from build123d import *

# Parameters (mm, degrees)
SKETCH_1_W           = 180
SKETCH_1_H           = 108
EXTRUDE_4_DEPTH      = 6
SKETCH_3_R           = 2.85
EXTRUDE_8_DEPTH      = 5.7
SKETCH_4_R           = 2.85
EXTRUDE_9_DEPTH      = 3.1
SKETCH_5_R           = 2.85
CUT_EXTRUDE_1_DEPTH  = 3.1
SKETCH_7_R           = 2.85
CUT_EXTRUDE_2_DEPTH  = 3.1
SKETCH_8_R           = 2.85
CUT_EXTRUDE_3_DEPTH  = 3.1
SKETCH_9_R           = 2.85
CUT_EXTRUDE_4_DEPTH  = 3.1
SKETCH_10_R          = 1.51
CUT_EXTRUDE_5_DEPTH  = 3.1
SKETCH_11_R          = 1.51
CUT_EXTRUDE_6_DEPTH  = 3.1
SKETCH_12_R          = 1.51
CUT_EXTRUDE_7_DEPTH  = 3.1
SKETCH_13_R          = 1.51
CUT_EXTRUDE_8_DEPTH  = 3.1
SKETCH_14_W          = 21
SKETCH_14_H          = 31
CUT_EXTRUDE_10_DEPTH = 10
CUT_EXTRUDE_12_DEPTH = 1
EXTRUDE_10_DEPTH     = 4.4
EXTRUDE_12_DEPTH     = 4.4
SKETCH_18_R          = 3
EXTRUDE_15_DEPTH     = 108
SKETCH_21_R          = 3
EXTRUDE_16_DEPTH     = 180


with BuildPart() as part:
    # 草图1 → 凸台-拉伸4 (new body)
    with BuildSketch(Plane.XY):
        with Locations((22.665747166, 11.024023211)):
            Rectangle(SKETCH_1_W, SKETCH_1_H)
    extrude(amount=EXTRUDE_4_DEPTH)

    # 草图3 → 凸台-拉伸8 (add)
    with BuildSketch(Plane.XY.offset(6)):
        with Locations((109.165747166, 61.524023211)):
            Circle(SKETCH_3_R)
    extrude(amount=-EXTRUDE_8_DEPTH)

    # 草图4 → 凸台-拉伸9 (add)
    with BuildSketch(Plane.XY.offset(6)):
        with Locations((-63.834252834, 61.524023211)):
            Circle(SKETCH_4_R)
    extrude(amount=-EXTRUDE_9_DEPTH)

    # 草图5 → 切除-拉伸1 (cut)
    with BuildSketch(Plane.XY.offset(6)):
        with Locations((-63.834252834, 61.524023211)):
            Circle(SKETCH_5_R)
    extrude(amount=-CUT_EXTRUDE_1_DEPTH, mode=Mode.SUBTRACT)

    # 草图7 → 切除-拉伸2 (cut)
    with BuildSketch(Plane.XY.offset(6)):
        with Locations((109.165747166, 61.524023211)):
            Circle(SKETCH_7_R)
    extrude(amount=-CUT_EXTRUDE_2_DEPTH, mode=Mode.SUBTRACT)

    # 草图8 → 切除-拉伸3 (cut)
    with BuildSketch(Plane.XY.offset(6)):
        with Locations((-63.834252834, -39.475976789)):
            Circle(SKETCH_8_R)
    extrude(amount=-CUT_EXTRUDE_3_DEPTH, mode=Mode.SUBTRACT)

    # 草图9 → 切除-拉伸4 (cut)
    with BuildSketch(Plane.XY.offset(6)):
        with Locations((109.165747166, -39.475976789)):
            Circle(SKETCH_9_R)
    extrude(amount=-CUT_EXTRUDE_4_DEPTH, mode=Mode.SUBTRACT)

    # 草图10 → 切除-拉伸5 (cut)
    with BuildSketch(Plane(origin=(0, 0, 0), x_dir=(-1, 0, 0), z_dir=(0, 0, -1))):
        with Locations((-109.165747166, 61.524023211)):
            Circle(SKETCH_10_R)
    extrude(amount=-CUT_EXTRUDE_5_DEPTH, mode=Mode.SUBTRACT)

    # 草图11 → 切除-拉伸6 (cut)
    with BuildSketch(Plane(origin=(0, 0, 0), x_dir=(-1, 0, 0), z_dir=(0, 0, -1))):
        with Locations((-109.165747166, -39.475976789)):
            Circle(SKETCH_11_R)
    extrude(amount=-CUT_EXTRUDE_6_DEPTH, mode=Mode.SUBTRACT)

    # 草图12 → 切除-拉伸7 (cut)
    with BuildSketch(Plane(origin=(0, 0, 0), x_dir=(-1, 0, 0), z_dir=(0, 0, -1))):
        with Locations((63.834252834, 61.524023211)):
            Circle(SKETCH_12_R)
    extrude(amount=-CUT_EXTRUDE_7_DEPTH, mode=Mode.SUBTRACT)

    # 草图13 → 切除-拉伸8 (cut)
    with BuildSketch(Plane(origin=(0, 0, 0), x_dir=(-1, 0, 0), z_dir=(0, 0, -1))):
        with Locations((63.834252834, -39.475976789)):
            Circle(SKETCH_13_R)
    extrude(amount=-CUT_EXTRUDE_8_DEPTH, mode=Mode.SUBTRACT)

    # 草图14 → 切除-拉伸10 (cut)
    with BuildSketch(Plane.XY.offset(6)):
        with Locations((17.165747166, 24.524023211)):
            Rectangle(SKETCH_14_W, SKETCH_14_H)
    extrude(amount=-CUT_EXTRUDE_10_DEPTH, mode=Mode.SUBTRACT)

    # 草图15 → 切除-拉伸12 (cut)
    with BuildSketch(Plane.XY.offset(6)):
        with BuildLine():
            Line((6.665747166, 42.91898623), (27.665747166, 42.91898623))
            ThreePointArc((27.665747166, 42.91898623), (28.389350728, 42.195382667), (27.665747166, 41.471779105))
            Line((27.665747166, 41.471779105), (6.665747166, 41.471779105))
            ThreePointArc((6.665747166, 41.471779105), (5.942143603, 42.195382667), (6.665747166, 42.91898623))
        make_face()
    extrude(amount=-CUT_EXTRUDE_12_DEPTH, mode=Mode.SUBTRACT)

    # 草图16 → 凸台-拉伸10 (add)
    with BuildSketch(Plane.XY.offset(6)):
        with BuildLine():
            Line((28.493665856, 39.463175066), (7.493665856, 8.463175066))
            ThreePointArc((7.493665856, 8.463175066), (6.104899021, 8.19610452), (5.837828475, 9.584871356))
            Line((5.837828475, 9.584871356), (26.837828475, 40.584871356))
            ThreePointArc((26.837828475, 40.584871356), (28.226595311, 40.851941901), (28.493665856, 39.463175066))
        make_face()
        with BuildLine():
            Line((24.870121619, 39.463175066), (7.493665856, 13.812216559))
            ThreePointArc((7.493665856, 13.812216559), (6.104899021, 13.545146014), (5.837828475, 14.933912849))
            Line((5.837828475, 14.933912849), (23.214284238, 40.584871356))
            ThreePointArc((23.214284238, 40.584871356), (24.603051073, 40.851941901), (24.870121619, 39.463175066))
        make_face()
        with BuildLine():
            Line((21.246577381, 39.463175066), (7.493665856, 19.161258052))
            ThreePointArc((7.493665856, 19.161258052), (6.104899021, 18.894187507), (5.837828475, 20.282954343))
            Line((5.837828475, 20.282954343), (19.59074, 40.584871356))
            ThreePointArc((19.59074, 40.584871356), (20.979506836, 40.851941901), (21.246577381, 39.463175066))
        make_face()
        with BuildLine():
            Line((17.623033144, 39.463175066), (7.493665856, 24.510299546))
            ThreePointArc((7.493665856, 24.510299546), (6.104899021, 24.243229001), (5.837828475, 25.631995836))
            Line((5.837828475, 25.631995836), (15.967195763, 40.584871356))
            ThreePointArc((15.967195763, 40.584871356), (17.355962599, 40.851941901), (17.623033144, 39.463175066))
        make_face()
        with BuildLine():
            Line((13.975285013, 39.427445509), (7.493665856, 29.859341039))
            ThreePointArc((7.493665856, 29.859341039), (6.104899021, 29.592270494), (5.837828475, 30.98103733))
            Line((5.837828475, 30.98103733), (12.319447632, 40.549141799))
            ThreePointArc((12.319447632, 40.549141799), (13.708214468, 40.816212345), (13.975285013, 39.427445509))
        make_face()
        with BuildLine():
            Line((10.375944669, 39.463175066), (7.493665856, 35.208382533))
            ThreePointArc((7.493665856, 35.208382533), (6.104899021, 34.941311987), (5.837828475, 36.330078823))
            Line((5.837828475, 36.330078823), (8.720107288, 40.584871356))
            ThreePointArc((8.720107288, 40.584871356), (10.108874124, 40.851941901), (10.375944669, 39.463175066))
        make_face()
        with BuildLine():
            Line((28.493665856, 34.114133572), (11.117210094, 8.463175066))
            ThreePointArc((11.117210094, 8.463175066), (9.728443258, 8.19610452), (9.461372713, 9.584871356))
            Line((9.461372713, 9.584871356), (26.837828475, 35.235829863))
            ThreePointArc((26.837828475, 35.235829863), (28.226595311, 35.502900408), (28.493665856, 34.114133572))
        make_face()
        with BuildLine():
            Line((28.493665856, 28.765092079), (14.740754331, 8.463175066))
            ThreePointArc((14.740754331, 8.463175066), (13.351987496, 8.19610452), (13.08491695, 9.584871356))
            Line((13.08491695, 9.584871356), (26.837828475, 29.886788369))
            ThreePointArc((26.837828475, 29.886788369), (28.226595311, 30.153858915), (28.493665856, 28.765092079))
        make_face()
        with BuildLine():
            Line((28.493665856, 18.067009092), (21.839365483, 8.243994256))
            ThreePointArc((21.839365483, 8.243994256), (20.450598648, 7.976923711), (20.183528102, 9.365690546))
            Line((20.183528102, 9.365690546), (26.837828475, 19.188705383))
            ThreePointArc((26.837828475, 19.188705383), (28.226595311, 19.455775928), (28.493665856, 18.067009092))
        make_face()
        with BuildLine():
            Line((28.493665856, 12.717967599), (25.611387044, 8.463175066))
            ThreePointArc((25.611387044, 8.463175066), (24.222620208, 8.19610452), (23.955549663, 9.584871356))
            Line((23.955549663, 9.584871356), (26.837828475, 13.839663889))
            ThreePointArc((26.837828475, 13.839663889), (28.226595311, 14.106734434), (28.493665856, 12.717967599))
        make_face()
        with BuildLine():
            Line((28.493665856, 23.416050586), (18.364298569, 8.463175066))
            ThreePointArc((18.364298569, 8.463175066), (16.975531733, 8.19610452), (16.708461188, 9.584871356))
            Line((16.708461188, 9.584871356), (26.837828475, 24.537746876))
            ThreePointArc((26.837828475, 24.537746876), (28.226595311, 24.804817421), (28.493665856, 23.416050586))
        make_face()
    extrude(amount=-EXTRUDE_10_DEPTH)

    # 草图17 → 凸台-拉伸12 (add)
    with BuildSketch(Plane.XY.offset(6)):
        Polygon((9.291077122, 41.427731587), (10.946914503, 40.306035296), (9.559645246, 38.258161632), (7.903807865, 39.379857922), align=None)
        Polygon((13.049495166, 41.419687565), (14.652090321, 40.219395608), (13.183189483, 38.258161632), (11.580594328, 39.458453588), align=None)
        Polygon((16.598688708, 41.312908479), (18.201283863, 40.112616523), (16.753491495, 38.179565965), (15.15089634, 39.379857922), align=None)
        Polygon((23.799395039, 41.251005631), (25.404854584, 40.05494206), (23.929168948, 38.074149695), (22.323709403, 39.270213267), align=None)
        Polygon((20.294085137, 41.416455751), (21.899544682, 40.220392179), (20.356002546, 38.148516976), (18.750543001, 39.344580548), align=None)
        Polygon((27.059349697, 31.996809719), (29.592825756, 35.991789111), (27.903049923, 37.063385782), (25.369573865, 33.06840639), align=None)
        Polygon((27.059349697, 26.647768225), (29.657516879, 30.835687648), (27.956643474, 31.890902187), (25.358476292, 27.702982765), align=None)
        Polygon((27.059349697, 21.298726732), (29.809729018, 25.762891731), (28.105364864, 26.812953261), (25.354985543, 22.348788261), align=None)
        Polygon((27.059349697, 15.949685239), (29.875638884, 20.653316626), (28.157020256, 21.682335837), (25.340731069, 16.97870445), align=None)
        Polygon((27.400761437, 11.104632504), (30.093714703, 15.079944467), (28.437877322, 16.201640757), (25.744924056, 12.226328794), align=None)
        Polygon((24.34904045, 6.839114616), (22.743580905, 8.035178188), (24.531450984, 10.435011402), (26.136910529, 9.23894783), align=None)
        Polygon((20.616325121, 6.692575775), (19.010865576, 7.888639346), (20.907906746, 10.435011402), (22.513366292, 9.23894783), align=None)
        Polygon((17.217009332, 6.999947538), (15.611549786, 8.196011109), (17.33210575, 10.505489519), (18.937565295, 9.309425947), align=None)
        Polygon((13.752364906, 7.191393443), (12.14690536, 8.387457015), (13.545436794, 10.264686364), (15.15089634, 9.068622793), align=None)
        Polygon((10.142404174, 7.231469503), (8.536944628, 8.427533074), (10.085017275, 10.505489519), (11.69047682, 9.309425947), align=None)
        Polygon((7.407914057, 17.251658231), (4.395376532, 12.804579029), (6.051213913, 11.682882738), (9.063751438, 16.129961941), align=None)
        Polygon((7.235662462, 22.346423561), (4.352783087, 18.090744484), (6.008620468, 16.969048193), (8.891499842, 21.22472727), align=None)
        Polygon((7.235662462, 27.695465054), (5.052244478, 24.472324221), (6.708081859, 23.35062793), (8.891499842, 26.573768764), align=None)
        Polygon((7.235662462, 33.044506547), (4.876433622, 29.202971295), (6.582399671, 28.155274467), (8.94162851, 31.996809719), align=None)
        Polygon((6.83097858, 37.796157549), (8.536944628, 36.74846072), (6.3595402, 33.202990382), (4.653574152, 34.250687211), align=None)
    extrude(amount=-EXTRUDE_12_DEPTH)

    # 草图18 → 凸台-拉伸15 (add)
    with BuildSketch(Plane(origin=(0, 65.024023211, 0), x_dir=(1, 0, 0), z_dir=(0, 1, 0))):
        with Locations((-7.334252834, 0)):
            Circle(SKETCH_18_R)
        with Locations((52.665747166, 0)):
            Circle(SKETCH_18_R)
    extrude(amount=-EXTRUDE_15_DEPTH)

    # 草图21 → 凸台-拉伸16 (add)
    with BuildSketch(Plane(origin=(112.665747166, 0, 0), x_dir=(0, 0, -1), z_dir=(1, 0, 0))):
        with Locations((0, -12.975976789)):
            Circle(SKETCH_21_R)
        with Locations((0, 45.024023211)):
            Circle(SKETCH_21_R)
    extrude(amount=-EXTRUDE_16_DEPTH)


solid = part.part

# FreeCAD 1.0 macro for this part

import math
import FreeCAD as App
import Part
import Sketcher

V = App.Vector


def add_polygon(sketch, points):
    """Adds a closed chain of lines whose ends are joined by coincident constraints."""
    first, n = sketch.GeometryCount, len(points)
    for a, b in zip(points, points[1:] + points[:1]):
        sketch.addGeometry(Part.LineSegment(App.Vector(*a, 0), App.Vector(*b, 0)), False)
    for i in range(n):
        sketch.addConstraint(Sketcher.Constraint("Coincident", first + i, 2, first + (i + 1) % n, 1))

doc = App.newDocument("Part")
body = doc.addObject("PartDesign::Body", "Body")

# Sketch on XY plane
sketch1 = body.newObject("Sketcher::SketchObject", "Sketch")
sketch1.AttachmentSupport = (doc.getObject("XY_Plane"), [""])
sketch1.MapMode = "FlatFace"
add_polygon(sketch1, [(-67.334253, 65.024023), (-67.334253, -42.975977), (112.665747, -42.975977), (112.665747, 65.024023)])  # lines 0-3
sketch1.addConstraint([
    Sketcher.Constraint("Vertical", 0),
    Sketcher.Constraint("Horizontal", 1),
    Sketcher.Constraint("Vertical", 2),
    Sketcher.Constraint("Horizontal", 3),
    Sketcher.Constraint("DistanceX", 1, 1, 1, 2, 180.0),
    Sketcher.Constraint("DistanceY", 0, 2, 0, 1, 108.0),
    Sketcher.Constraint("DistanceX", 0, 2, -1, 1, 67.334253),
    Sketcher.Constraint("DistanceY", 0, 2, -1, 1, 42.975977),
])
pad1 = body.newObject("PartDesign::Pad", "Pad")
pad1.Profile = sketch1
pad1.Length = 6

# Sketch on XY plane
sketch2 = body.newObject("Sketcher::SketchObject", "Sketch001")
sketch2.AttachmentSupport = (doc.getObject("XY_Plane"), [""])
sketch2.MapMode = "FlatFace"
sketch2.AttachmentOffset = App.Placement(V(0, 0, 6), App.Rotation())
sketch2.addGeometry(Part.Circle(V(109.165747, 61.524023, 0), V(0, 0, 1), 2.85), False)
sketch2.addConstraint([
    Sketcher.Constraint("Diameter", 0, 5.7),
    Sketcher.Constraint("DistanceX", -1, 1, 0, 3, 109.165747),
    Sketcher.Constraint("DistanceY", -1, 1, 0, 3, 61.524023),
])
pad2 = body.newObject("PartDesign::Pad", "Pad001")
pad2.Profile = sketch2
pad2.Length = 5.7
pad2.Reversed = True

# Sketch on XY plane
sketch3 = body.newObject("Sketcher::SketchObject", "Sketch002")
sketch3.AttachmentSupport = (doc.getObject("XY_Plane"), [""])
sketch3.MapMode = "FlatFace"
sketch3.AttachmentOffset = App.Placement(V(0, 0, 6), App.Rotation())
sketch3.addGeometry(Part.Circle(V(-63.834253, 61.524023, 0), V(0, 0, 1), 2.85), False)
sketch3.addConstraint([
    Sketcher.Constraint("Diameter", 0, 5.7),
    Sketcher.Constraint("DistanceX", 0, 3, -1, 1, 63.834253),
    Sketcher.Constraint("DistanceY", -1, 1, 0, 3, 61.524023),
])
pad3 = body.newObject("PartDesign::Pad", "Pad002")
pad3.Profile = sketch3
pad3.Length = 3.1
pad3.Reversed = True

# Sketch on XY plane
sketch4 = body.newObject("Sketcher::SketchObject", "Sketch003")
sketch4.AttachmentSupport = (doc.getObject("XY_Plane"), [""])
sketch4.MapMode = "FlatFace"
sketch4.AttachmentOffset = App.Placement(V(0, 0, 6), App.Rotation())
sketch4.addGeometry(Part.Circle(V(-63.834253, 61.524023, 0), V(0, 0, 1), 2.85), False)
sketch4.addConstraint([
    Sketcher.Constraint("Diameter", 0, 5.7),
    Sketcher.Constraint("DistanceX", 0, 3, -1, 1, 63.834253),
    Sketcher.Constraint("DistanceY", -1, 1, 0, 3, 61.524023),
])
pocket1 = body.newObject("PartDesign::Pocket", "Pocket")
pocket1.Profile = sketch4
pocket1.Length = 3.1

# Sketch on XY plane
sketch5 = body.newObject("Sketcher::SketchObject", "Sketch004")
sketch5.AttachmentSupport = (doc.getObject("XY_Plane"), [""])
sketch5.MapMode = "FlatFace"
sketch5.AttachmentOffset = App.Placement(V(0, 0, 6), App.Rotation())
sketch5.addGeometry(Part.Circle(V(109.165747, 61.524023, 0), V(0, 0, 1), 2.85), False)
sketch5.addConstraint([
    Sketcher.Constraint("Diameter", 0, 5.7),
    Sketcher.Constraint("DistanceX", -1, 1, 0, 3, 109.165747),
    Sketcher.Constraint("DistanceY", -1, 1, 0, 3, 61.524023),
])
pocket2 = body.newObject("PartDesign::Pocket", "Pocket001")
pocket2.Profile = sketch5
pocket2.Length = 3.1

# Sketch on XY plane
sketch6 = body.newObject("Sketcher::SketchObject", "Sketch005")
sketch6.AttachmentSupport = (doc.getObject("XY_Plane"), [""])
sketch6.MapMode = "FlatFace"
sketch6.AttachmentOffset = App.Placement(V(0, 0, 6), App.Rotation())
sketch6.addGeometry(Part.Circle(V(-63.834253, -39.475977, 0), V(0, 0, 1), 2.85), False)
sketch6.addConstraint([
    Sketcher.Constraint("Diameter", 0, 5.7),
    Sketcher.Constraint("DistanceX", 0, 3, -1, 1, 63.834253),
    Sketcher.Constraint("DistanceY", 0, 3, -1, 1, 39.475977),
])
pocket3 = body.newObject("PartDesign::Pocket", "Pocket002")
pocket3.Profile = sketch6
pocket3.Length = 3.1

# Sketch on XY plane
sketch7 = body.newObject("Sketcher::SketchObject", "Sketch006")
sketch7.AttachmentSupport = (doc.getObject("XY_Plane"), [""])
sketch7.MapMode = "FlatFace"
sketch7.AttachmentOffset = App.Placement(V(0, 0, 6), App.Rotation())
sketch7.addGeometry(Part.Circle(V(109.165747, -39.475977, 0), V(0, 0, 1), 2.85), False)
sketch7.addConstraint([
    Sketcher.Constraint("Diameter", 0, 5.7),
    Sketcher.Constraint("DistanceX", -1, 1, 0, 3, 109.165747),
    Sketcher.Constraint("DistanceY", 0, 3, -1, 1, 39.475977),
])
pocket4 = body.newObject("PartDesign::Pocket", "Pocket003")
pocket4.Profile = sketch7
pocket4.Length = 3.1

# Sketch on XY plane
sketch8 = body.newObject("Sketcher::SketchObject", "Sketch007")
sketch8.AttachmentSupport = (doc.getObject("XY_Plane"), [""])
sketch8.MapMode = "FlatFace"
sketch8.addGeometry(Part.Circle(V(109.165747, 61.524023, 0), V(0, 0, 1), 1.51), False)
sketch8.addConstraint([
    Sketcher.Constraint("Diameter", 0, 3.02),
    Sketcher.Constraint("DistanceX", -1, 1, 0, 3, 109.165747),
    Sketcher.Constraint("DistanceY", -1, 1, 0, 3, 61.524023),
])
pocket5 = body.newObject("PartDesign::Pocket", "Pocket004")
pocket5.Profile = sketch8
pocket5.Length = 3.1
pocket5.Reversed = True

# Sketch on XY plane
sketch9 = body.newObject("Sketcher::SketchObject", "Sketch008")
sketch9.AttachmentSupport = (doc.getObject("XY_Plane"), [""])
sketch9.MapMode = "FlatFace"
sketch9.addGeometry(Part.Circle(V(109.165747, -39.475977, 0), V(0, 0, 1), 1.51), False)
sketch9.addConstraint([
    Sketcher.Constraint("Diameter", 0, 3.02),
    Sketcher.Constraint("DistanceX", -1, 1, 0, 3, 109.165747),
    Sketcher.Constraint("DistanceY", 0, 3, -1, 1, 39.475977),
])
pocket6 = body.newObject("PartDesign::Pocket", "Pocket005")
pocket6.Profile = sketch9
pocket6.Length = 3.1
pocket6.Reversed = True

# Sketch on XY plane
sketch10 = body.newObject("Sketcher::SketchObject", "Sketch009")
sketch10.AttachmentSupport = (doc.getObject("XY_Plane"), [""])
sketch10.MapMode = "FlatFace"
sketch10.addGeometry(Part.Circle(V(-63.834253, 61.524023, 0), V(0, 0, 1), 1.51), False)
sketch10.addConstraint([
    Sketcher.Constraint("Diameter", 0, 3.02),
    Sketcher.Constraint("DistanceX", 0, 3, -1, 1, 63.834253),
    Sketcher.Constraint("DistanceY", -1, 1, 0, 3, 61.524023),
])
pocket7 = body.newObject("PartDesign::Pocket", "Pocket006")
pocket7.Profile = sketch10
pocket7.Length = 3.1
pocket7.Reversed = True

# Sketch on XY plane
sketch11 = body.newObject("Sketcher::SketchObject", "Sketch010")
sketch11.AttachmentSupport = (doc.getObject("XY_Plane"), [""])
sketch11.MapMode = "FlatFace"
sketch11.addGeometry(Part.Circle(V(-63.834253, -39.475977, 0), V(0, 0, 1), 1.51), False)
sketch11.addConstraint([
    Sketcher.Constraint("Diameter", 0, 3.02),
    Sketcher.Constraint("DistanceX", 0, 3, -1, 1, 63.834253),
    Sketcher.Constraint("DistanceY", 0, 3, -1, 1, 39.475977),
])
pocket8 = body.newObject("PartDesign::Pocket", "Pocket007")
pocket8.Profile = sketch11
pocket8.Length = 3.1
pocket8.Reversed = True

# Sketch on XY plane
sketch12 = body.newObject("Sketcher::SketchObject", "Sketch011")
sketch12.AttachmentSupport = (doc.getObject("XY_Plane"), [""])
sketch12.MapMode = "FlatFace"
sketch12.AttachmentOffset = App.Placement(V(0, 0, 6), App.Rotation())
add_polygon(sketch12, [(6.665747, 40.024023), (6.665747, 9.024023), (27.665747, 9.024023), (27.665747, 40.024023)])  # lines 0-3
sketch12.addConstraint([
    Sketcher.Constraint("Vertical", 0),
    Sketcher.Constraint("Horizontal", 1),
    Sketcher.Constraint("Vertical", 2),
    Sketcher.Constraint("Horizontal", 3),
    Sketcher.Constraint("DistanceX", 1, 1, 1, 2, 21.0),
    Sketcher.Constraint("DistanceY", 0, 2, 0, 1, 31.0),
    Sketcher.Constraint("DistanceX", -1, 1, 0, 2, 6.665747),
    Sketcher.Constraint("DistanceY", -1, 1, 0, 2, 9.024023),
])
pocket9 = body.newObject("PartDesign::Pocket", "Pocket008")
pocket9.Profile = sketch12
pocket9.Length = 10

# Sketch on XY plane
sketch13 = body.newObject("Sketcher::SketchObject", "Sketch012")
sketch13.AttachmentSupport = (doc.getObject("XY_Plane"), [""])
sketch13.MapMode = "FlatFace"
sketch13.AttachmentOffset = App.Placement(V(0, 0, 6), App.Rotation())
sketch13.addGeometry([
    Part.LineSegment(V(27.665747, 42.918986, 0), V(6.665747, 42.918986, 0)),
    Part.ArcOfCircle(Part.Circle(V(6.665747, 42.195383, 0), V(0, 0, 1), 0.723604), math.radians(90), math.radians(270)),
    Part.LineSegment(V(6.665747, 41.471779, 0), V(27.665747, 41.471779, 0)),
    Part.ArcOfCircle(Part.Circle(V(27.665747, 42.195383, 0), V(0, 0, 1), 0.723604), math.radians(-90), math.radians(90)),
], False)
sketch13.addConstraint([
    Sketcher.Constraint("Tangent", 0, 2, 1, 1),
    Sketcher.Constraint("Tangent", 1, 2, 2, 1),
    Sketcher.Constraint("Tangent", 2, 2, 3, 1),
    Sketcher.Constraint("Tangent", 3, 2, 0, 1),
    Sketcher.Constraint("Horizontal", 0),
    Sketcher.Constraint("Horizontal", 2),
    Sketcher.Constraint("DistanceX", 0, 2, 0, 1, 21.0),
    Sketcher.Constraint("Radius", 1, 0.723604),
    Sketcher.Constraint("DistanceY", -1, 1, 1, 2, 41.471779),
    Sketcher.Constraint("DistanceX", -1, 1, 1, 3, 6.665747),
])
pocket10 = body.newObject("PartDesign::Pocket", "Pocket009")
pocket10.Profile = sketch13
pocket10.Length = 1

# Sketch on XY plane
sketch14 = body.newObject("Sketcher::SketchObject", "Sketch013")
sketch14.AttachmentSupport = (doc.getObject("XY_Plane"), [""])
sketch14.MapMode = "FlatFace"
sketch14.AttachmentOffset = App.Placement(V(0, 0, 6), App.Rotation())
sketch14.addGeometry([
    Part.LineSegment(V(7.493666, 8.463175, 0), V(28.493666, 39.463175, 0)),  # 0
    Part.ArcOfCircle(Part.Circle(V(27.665747, 40.024023, 0), V(0, 0, 1), 1), math.radians(-34.114473), math.radians(145.885527)),  # 1
    Part.LineSegment(V(26.837828, 40.584871, 0), V(5.837828, 9.584871, 0)),  # 2
    Part.ArcOfCircle(Part.Circle(V(6.665747, 9.024023, 0), V(0, 0, 1), 1), math.radians(145.885527), math.radians(325.885527)),  # 3
    Part.LineSegment(V(7.493666, 13.812217, 0), V(24.870122, 39.463175, 0)),  # 4
    Part.ArcOfCircle(Part.Circle(V(24.042203, 40.024023, 0), V(0, 0, 1), 1), math.radians(-34.114473), math.radians(145.885527)),  # 5
    Part.LineSegment(V(23.214284, 40.584871, 0), V(5.837828, 14.933913, 0)),  # 6
    Part.ArcOfCircle(Part.Circle(V(6.665747, 14.373065, 0), V(0, 0, 1), 1), math.radians(145.885527), math.radians(325.885527)),  # 7
    Part.LineSegment(V(7.493666, 19.161258, 0), V(21.246577, 39.463175, 0)),  # 8
    Part.ArcOfCircle(Part.Circle(V(20.418659, 40.024023, 0), V(0, 0, 1), 1), math.radians(-34.114473), math.radians(145.885527)),  # 9
    Part.LineSegment(V(19.59074, 40.584871, 0), V(5.837828, 20.282954, 0)),  # 10
    Part.ArcOfCircle(Part.Circle(V(6.665747, 19.722106, 0), V(0, 0, 1), 1), math.radians(145.885527), math.radians(325.885527)),  # 11
    Part.LineSegment(V(7.493666, 24.5103, 0), V(17.623033, 39.463175, 0)),  # 12
    Part.ArcOfCircle(Part.Circle(V(16.795114, 40.024023, 0), V(0, 0, 1), 1), math.radians(-34.114473), math.radians(145.885527)),  # 13
    Part.LineSegment(V(15.967196, 40.584871, 0), V(5.837828, 25.631996, 0)),  # 14
    Part.ArcOfCircle(Part.Circle(V(6.665747, 25.071148, 0), V(0, 0, 1), 1), math.radians(145.885527), math.radians(325.885527)),  # 15
    Part.LineSegment(V(7.493666, 29.859341, 0), V(13.975285, 39.427446, 0)),  # 16
    Part.ArcOfCircle(Part.Circle(V(13.147366, 39.988294, 0), V(0, 0, 1), 1), math.radians(-34.114473), math.radians(145.885527)),  # 17
    Part.LineSegment(V(12.319448, 40.549142, 0), V(5.837828, 30.981037, 0)),  # 18
    Part.ArcOfCircle(Part.Circle(V(6.665747, 30.420189, 0), V(0, 0, 1), 1), math.radians(145.885527), math.radians(325.885527)),  # 19
    Part.LineSegment(V(7.493666, 35.208383, 0), V(10.375945, 39.463175, 0)),  # 20
    Part.ArcOfCircle(Part.Circle(V(9.548026, 40.024023, 0), V(0, 0, 1), 1), math.radians(-34.114473), math.radians(145.885527)),  # 21
    Part.LineSegment(V(8.720107, 40.584871, 0), V(5.837828, 36.330079, 0)),  # 22
    Part.ArcOfCircle(Part.Circle(V(6.665747, 35.769231, 0), V(0, 0, 1), 1), math.radians(145.885527), math.radians(325.885527)),  # 23
    Part.LineSegment(V(11.11721, 8.463175, 0), V(28.493666, 34.114134, 0)),  # 24
    Part.ArcOfCircle(Part.Circle(V(27.665747, 34.674982, 0), V(0, 0, 1), 1), math.radians(-34.114473), math.radians(145.885527)),  # 25
    Part.LineSegment(V(26.837828, 35.23583, 0), V(9.461373, 9.584871, 0)),  # 26
    Part.ArcOfCircle(Part.Circle(V(10.289291, 9.024023, 0), V(0, 0, 1), 1), math.radians(145.885527), math.radians(325.885527)),  # 27
    Part.LineSegment(V(14.740754, 8.463175, 0), V(28.493666, 28.765092, 0)),  # 28
    Part.ArcOfCircle(Part.Circle(V(27.665747, 29.32594, 0), V(0, 0, 1), 1), math.radians(-34.114473), math.radians(145.885527)),  # 29
    Part.LineSegment(V(26.837828, 29.886788, 0), V(13.084917, 9.584871, 0)),  # 30
    Part.ArcOfCircle(Part.Circle(V(13.912836, 9.024023, 0), V(0, 0, 1), 1), math.radians(145.885527), math.radians(325.885527)),  # 31
    Part.LineSegment(V(21.839365, 8.243994, 0), V(28.493666, 18.067009, 0)),  # 32
    Part.ArcOfCircle(Part.Circle(V(27.665747, 18.627857, 0), V(0, 0, 1), 1), math.radians(-34.114473), math.radians(145.885527)),  # 33
    Part.LineSegment(V(26.837828, 19.188705, 0), V(20.183528, 9.365691, 0)),  # 34
    Part.ArcOfCircle(Part.Circle(V(21.011447, 8.804842, 0), V(0, 0, 1), 1), math.radians(145.885527), math.radians(325.885527)),  # 35
    Part.LineSegment(V(25.611387, 8.463175, 0), V(28.493666, 12.717968, 0)),  # 36
    Part.ArcOfCircle(Part.Circle(V(27.665747, 13.278816, 0), V(0, 0, 1), 1), math.radians(-34.114473), math.radians(145.885527)),  # 37
    Part.LineSegment(V(26.837828, 13.839664, 0), V(23.95555, 9.584871, 0)),  # 38
    Part.ArcOfCircle(Part.Circle(V(24.783468, 9.024023, 0), V(0, 0, 1), 1), math.radians(145.885527), math.radians(325.885527)),  # 39
    Part.LineSegment(V(18.364299, 8.463175, 0), V(28.493666, 23.416051, 0)),  # 40
    Part.ArcOfCircle(Part.Circle(V(27.665747, 23.976899, 0), V(0, 0, 1), 1), math.radians(-34.114473), math.radians(145.885527)),  # 41
    Part.LineSegment(V(26.837828, 24.537747, 0), V(16.708461, 9.584871, 0)),  # 42
    Part.ArcOfCircle(Part.Circle(V(17.53638, 9.024023, 0), V(0, 0, 1), 1), math.radians(145.885527), math.radians(325.885527)),  # 43
], False)
sketch14.addConstraint([
    Sketcher.Constraint("Tangent", 0, 2, 1, 1),
    Sketcher.Constraint("Tangent", 1, 2, 2, 1),
    Sketcher.Constraint("Tangent", 2, 2, 3, 1),
    Sketcher.Constraint("Tangent", 3, 2, 0, 1),
    Sketcher.Constraint("Tangent", 4, 2, 5, 1),
    Sketcher.Constraint("Tangent", 5, 2, 6, 1),
    Sketcher.Constraint("Tangent", 6, 2, 7, 1),
    Sketcher.Constraint("Tangent", 7, 2, 4, 1),
    Sketcher.Constraint("Tangent", 8, 2, 9, 1),
    Sketcher.Constraint("Tangent", 9, 2, 10, 1),
    Sketcher.Constraint("Tangent", 10, 2, 11, 1),
    Sketcher.Constraint("Tangent", 11, 2, 8, 1),
    Sketcher.Constraint("Tangent", 12, 2, 13, 1),
    Sketcher.Constraint("Tangent", 13, 2, 14, 1),
    Sketcher.Constraint("Tangent", 14, 2, 15, 1),
    Sketcher.Constraint("Tangent", 15, 2, 12, 1),
    Sketcher.Constraint("Tangent", 16, 2, 17, 1),
    Sketcher.Constraint("Tangent", 17, 2, 18, 1),
    Sketcher.Constraint("Tangent", 18, 2, 19, 1),
    Sketcher.Constraint("Tangent", 19, 2, 16, 1),
    Sketcher.Constraint("Tangent", 20, 2, 21, 1),
    Sketcher.Constraint("Tangent", 21, 2, 22, 1),
    Sketcher.Constraint("Tangent", 22, 2, 23, 1),
    Sketcher.Constraint("Tangent", 23, 2, 20, 1),
    Sketcher.Constraint("Tangent", 24, 2, 25, 1),
    Sketcher.Constraint("Tangent", 25, 2, 26, 1),
    Sketcher.Constraint("Tangent", 26, 2, 27, 1),
    Sketcher.Constraint("Tangent", 27, 2, 24, 1),
    Sketcher.Constraint("Tangent", 28, 2, 29, 1),
    Sketcher.Constraint("Tangent", 29, 2, 30, 1),
    Sketcher.Constraint("Tangent", 30, 2, 31, 1),
    Sketcher.Constraint("Tangent", 31, 2, 28, 1),
    Sketcher.Constraint("Tangent", 32, 2, 33, 1),
    Sketcher.Constraint("Tangent", 33, 2, 34, 1),
    Sketcher.Constraint("Tangent", 34, 2, 35, 1),
    Sketcher.Constraint("Tangent", 35, 2, 32, 1),
    Sketcher.Constraint("Tangent", 36, 2, 37, 1),
    Sketcher.Constraint("Tangent", 37, 2, 38, 1),
    Sketcher.Constraint("Tangent", 38, 2, 39, 1),
    Sketcher.Constraint("Tangent", 39, 2, 36, 1),
    Sketcher.Constraint("Tangent", 40, 2, 41, 1),
    Sketcher.Constraint("Tangent", 41, 2, 42, 1),
    Sketcher.Constraint("Tangent", 42, 2, 43, 1),
    Sketcher.Constraint("Tangent", 43, 2, 40, 1),
    Sketcher.Constraint("Equal", 1, 3),
    Sketcher.Constraint("Equal", 3, 5),
    Sketcher.Constraint("Equal", 5, 7),
    Sketcher.Constraint("Equal", 7, 9),
    Sketcher.Constraint("Equal", 9, 11),
    Sketcher.Constraint("Equal", 11, 13),
    Sketcher.Constraint("Equal", 13, 15),
    Sketcher.Constraint("Equal", 15, 17),
    Sketcher.Constraint("Equal", 17, 19),
    Sketcher.Constraint("Equal", 19, 21),
    Sketcher.Constraint("Equal", 21, 23),
    Sketcher.Constraint("Equal", 23, 25),
    Sketcher.Constraint("Equal", 25, 27),
    Sketcher.Constraint("Equal", 27, 29),
    Sketcher.Constraint("Equal", 29, 31),
    Sketcher.Constraint("Equal", 31, 33),
    Sketcher.Constraint("Equal", 33, 35),
    Sketcher.Constraint("Equal", 35, 37),
    Sketcher.Constraint("Equal", 37, 39),
    Sketcher.Constraint("Equal", 39, 41),
    Sketcher.Constraint("Equal", 41, 43),
    Sketcher.Constraint("Parallel", 2, 4),
    Sketcher.Constraint("Parallel", 6, 8),
    Sketcher.Constraint("Parallel", 10, 12),
    Sketcher.Constraint("Parallel", 14, 16),
    Sketcher.Constraint("Parallel", 18, 20),
    Sketcher.Constraint("Parallel", 22, 24),
    Sketcher.Constraint("Parallel", 26, 28),
    Sketcher.Constraint("Parallel", 30, 32),
    Sketcher.Constraint("Parallel", 34, 36),
    Sketcher.Constraint("Parallel", 38, 40),
    Sketcher.Constraint("Horizontal", 1, 3, 5, 3),
    Sketcher.Constraint("Horizontal", 5, 3, 9, 3),
    Sketcher.Constraint("Horizontal", 9, 3, 13, 3),
    Sketcher.Constraint("Horizontal", 13, 3, 21, 3),
    Sketcher.Constraint("Horizontal", 3, 3, 27, 3),
    Sketcher.Constraint("Horizontal", 27, 3, 31, 3),
    Sketcher.Constraint("Horizontal", 31, 3, 39, 3),
    Sketcher.Constraint("Horizontal", 39, 3, 43, 3),
    Sketcher.Constraint("Vertical", 3, 3, 7, 3),
    Sketcher.Constraint("Vertical", 7, 3, 11, 3),
    Sketcher.Constraint("Vertical", 11, 3, 15, 3),
    Sketcher.Constraint("Vertical", 15, 3, 19, 3),
    Sketcher.Constraint("Vertical", 19, 3, 23, 3),
    Sketcher.Constraint("Vertical", 1, 3, 25, 3),
    Sketcher.Constraint("Vertical", 25, 3, 29, 3),
    Sketcher.Constraint("Vertical", 29, 3, 33, 3),
    Sketcher.Constraint("Vertical", 33, 3, 37, 3),
    Sketcher.Constraint("Vertical", 37, 3, 41, 3),
    Sketcher.Constraint("Equal", 6, 24),
    Sketcher.Constraint("Equal", 10, 28),
    Sketcher.Constraint("Equal", 22, 36),
    Sketcher.Constraint("Equal", 14, 40),
    Sketcher.Constraint("Radius", 1, 1.0),
    Sketcher.Constraint("Distance", 12, 18.060802),
    Sketcher.Constraint("DistanceY", -1, 1, 41, 3, 23.976899),
    Sketcher.Constraint("DistanceY", -1, 1, 15, 2, 24.5103),
    Sketcher.Constraint("DistanceX", -1, 1, 43, 2, 18.364299),
    Sketcher.Constraint("Distance", 0, 37.44329),
    Sketcher.Constraint("Distance", 4, 30.982461),
    Sketcher.Constraint("Distance", 8, 24.521631),
    Sketcher.Constraint("Distance", 32, 11.86471),
    Sketcher.Constraint("DistanceY", -1, 1, 19, 3, 30.420189),
    Sketcher.Constraint("DistanceY", -1, 1, 23, 3, 35.769231),
    Sketcher.Constraint("DistanceY", -1, 1, 17, 2, 40.549142),
    Sketcher.Constraint("DistanceY", -1, 1, 32, 2, 18.067009),
])
pad4 = body.newObject("PartDesign::Pad", "Pad003")
pad4.Profile = sketch14
pad4.Length = 4.4
pad4.Reversed = True

# Sketch on XY plane
sketch15 = body.newObject("Sketcher::SketchObject", "Sketch014")
sketch15.AttachmentSupport = (doc.getObject("XY_Plane"), [""])
sketch15.MapMode = "FlatFace"
sketch15.AttachmentOffset = App.Placement(V(0, 0, 6), App.Rotation())
add_polygon(sketch15, [(10.946915, 40.306035), (9.291077, 41.427732), (7.903808, 39.379858), (9.559645, 38.258162)])  # lines 0-3
add_polygon(sketch15, [(14.65209, 40.219396), (13.049495, 41.419688), (11.580594, 39.458454), (13.183189, 38.258162)])  # lines 4-7
add_polygon(sketch15, [(18.201284, 40.112617), (16.598689, 41.312908), (15.150896, 39.379858), (16.753491, 38.179566)])  # lines 8-11
add_polygon(sketch15, [(25.404855, 40.054942), (23.799395, 41.251006), (22.323709, 39.270213), (23.929169, 38.07415)])  # lines 12-15
add_polygon(sketch15, [(21.899545, 40.220392), (20.294085, 41.416456), (18.750543, 39.344581), (20.356003, 38.148517)])  # lines 16-19
add_polygon(sketch15, [(27.05935, 31.99681), (29.592826, 35.991789), (27.90305, 37.063386), (25.369574, 33.068406)])  # lines 20-23
add_polygon(sketch15, [(27.05935, 26.647768), (29.657517, 30.835688), (27.956643, 31.890902), (25.358476, 27.702983)])  # lines 24-27
add_polygon(sketch15, [(27.05935, 21.298727), (29.809729, 25.762892), (28.105365, 26.812953), (25.354986, 22.348788)])  # lines 28-31
add_polygon(sketch15, [(27.05935, 15.949685), (29.875639, 20.653317), (28.15702, 21.682336), (25.340731, 16.978704)])  # lines 32-35
add_polygon(sketch15, [(27.400761, 11.104633), (30.093715, 15.079944), (28.437877, 16.201641), (25.744924, 12.226329)])  # lines 36-39
add_polygon(sketch15, [(22.743581, 8.035178), (24.34904, 6.839115), (26.136911, 9.238948), (24.531451, 10.435011)])  # lines 40-43
add_polygon(sketch15, [(19.010866, 7.888639), (20.616325, 6.692576), (22.513366, 9.238948), (20.907907, 10.435011)])  # lines 44-47
add_polygon(sketch15, [(15.61155, 8.196011), (17.217009, 6.999948), (18.937565, 9.309426), (17.332106, 10.50549)])  # lines 48-51
add_polygon(sketch15, [(12.146905, 8.387457), (13.752365, 7.191393), (15.150896, 9.068623), (13.545437, 10.264686)])  # lines 52-55
add_polygon(sketch15, [(8.536945, 8.427533), (10.142404, 7.23147), (11.690477, 9.309426), (10.085017, 10.50549)])  # lines 56-59
add_polygon(sketch15, [(7.407914, 17.251658), (4.395377, 12.804579), (6.051214, 11.682883), (9.063751, 16.129962)])  # lines 60-63
add_polygon(sketch15, [(7.235662, 22.346424), (4.352783, 18.090744), (6.00862, 16.969048), (8.8915, 21.224727)])  # lines 64-67
add_polygon(sketch15, [(7.235662, 27.695465), (5.052244, 24.472324), (6.708082, 23.350628), (8.8915, 26.573769)])  # lines 68-71
add_polygon(sketch15, [(7.235662, 33.044507), (4.876434, 29.202971), (6.5824, 28.155274), (8.941629, 31.99681)])  # lines 72-75
add_polygon(sketch15, [(8.536945, 36.748461), (6.830979, 37.796158), (4.653574, 34.250687), (6.35954, 33.20299)])  # lines 76-79
sketch15.addConstraint([
    Sketcher.Constraint("Perpendicular", 0, 1),
    Sketcher.Constraint("Perpendicular", 1, 2),
    Sketcher.Constraint("Perpendicular", 2, 3),
    Sketcher.Constraint("Perpendicular", 4, 5),
    Sketcher.Constraint("Perpendicular", 5, 6),
    Sketcher.Constraint("Perpendicular", 6, 7),
    Sketcher.Constraint("Perpendicular", 7, 8),
    Sketcher.Constraint("Perpendicular", 8, 9),
    Sketcher.Constraint("Perpendicular", 9, 10),
    Sketcher.Constraint("Perpendicular", 10, 11),
    Sketcher.Constraint("Perpendicular", 12, 13),
    Sketcher.Constraint("Perpendicular", 13, 14),
    Sketcher.Constraint("Perpendicular", 14, 15),
    Sketcher.Constraint("Perpendicular", 15, 16),
    Sketcher.Constraint("Perpendicular", 16, 17),
    Sketcher.Constraint("Perpendicular", 17, 18),
    Sketcher.Constraint("Perpendicular", 18, 19),
    Sketcher.Constraint("Perpendicular", 20, 21),
    Sketcher.Constraint("Perpendicular", 21, 22),
    Sketcher.Constraint("Perpendicular", 22, 23),
    Sketcher.Constraint("Perpendicular", 24, 25),
    Sketcher.Constraint("Perpendicular", 25, 26),
    Sketcher.Constraint("Perpendicular", 26, 27),
    Sketcher.Constraint("Perpendicular", 28, 29),
    Sketcher.Constraint("Perpendicular", 29, 30),
    Sketcher.Constraint("Perpendicular", 30, 31),
    Sketcher.Constraint("Perpendicular", 32, 33),
    Sketcher.Constraint("Perpendicular", 33, 34),
    Sketcher.Constraint("Perpendicular", 34, 35),
    Sketcher.Constraint("Parallel", 3, 36),
    Sketcher.Constraint("Perpendicular", 36, 37),
    Sketcher.Constraint("Perpendicular", 37, 38),
    Sketcher.Constraint("Perpendicular", 38, 39),
    Sketcher.Constraint("Perpendicular", 19, 40),
    Sketcher.Constraint("Perpendicular", 40, 41),
    Sketcher.Constraint("Perpendicular", 41, 42),
    Sketcher.Constraint("Perpendicular", 42, 43),
    Sketcher.Constraint("Perpendicular", 43, 44),
    Sketcher.Constraint("Perpendicular", 44, 45),
    Sketcher.Constraint("Perpendicular", 45, 46),
    Sketcher.Constraint("Perpendicular", 46, 47),
    Sketcher.Constraint("Perpendicular", 47, 48),
    Sketcher.Constraint("Perpendicular", 48, 49),
    Sketcher.Constraint("Perpendicular", 49, 50),
    Sketcher.Constraint("Perpendicular", 50, 51),
    Sketcher.Constraint("Perpendicular", 51, 52),
    Sketcher.Constraint("Perpendicular", 52, 53),
    Sketcher.Constraint("Perpendicular", 53, 54),
    Sketcher.Constraint("Perpendicular", 54, 55),
    Sketcher.Constraint("Perpendicular", 55, 56),
    Sketcher.Constraint("Perpendicular", 56, 57),
    Sketcher.Constraint("Perpendicular", 57, 58),
    Sketcher.Constraint("Perpendicular", 58, 59),
    Sketcher.Constraint("Perpendicular", 39, 60),
    Sketcher.Constraint("Perpendicular", 60, 61),
    Sketcher.Constraint("Perpendicular", 61, 62),
    Sketcher.Constraint("Perpendicular", 62, 63),
    Sketcher.Constraint("Perpendicular", 63, 64),
    Sketcher.Constraint("Perpendicular", 64, 65),
    Sketcher.Constraint("Perpendicular", 65, 66),
    Sketcher.Constraint("Perpendicular", 66, 67),
    Sketcher.Constraint("Perpendicular", 67, 68),
    Sketcher.Constraint("Perpendicular", 68, 69),
    Sketcher.Constraint("Perpendicular", 69, 70),
    Sketcher.Constraint("Perpendicular", 70, 71),
    Sketcher.Constraint("Perpendicular", 72, 73),
    Sketcher.Constraint("Perpendicular", 73, 74),
    Sketcher.Constraint("Perpendicular", 74, 75),
    Sketcher.Constraint("Parallel", 75, 76),
    Sketcher.Constraint("Perpendicular", 76, 77),
    Sketcher.Constraint("Perpendicular", 77, 78),
    Sketcher.Constraint("Perpendicular", 78, 79),
    Sketcher.Constraint("Horizontal", 2, 2, 6, 2),
    Sketcher.Constraint("Horizontal", 1, 2, 9, 2),
    Sketcher.Constraint("Horizontal", 41, 2, 45, 2),
    Sketcher.Constraint("Horizontal", 42, 2, 46, 2),
    Sketcher.Constraint("Horizontal", 49, 2, 57, 2),
    Sketcher.Constraint("Horizontal", 50, 2, 58, 2),
    Sketcher.Constraint("Horizontal", 23, 2, 74, 2),
    Sketcher.Constraint("Vertical", 23, 2, 27, 2),
    Sketcher.Constraint("Vertical", 27, 2, 31, 2),
    Sketcher.Constraint("Vertical", 31, 2, 35, 2),
    Sketcher.Constraint("Vertical", 9, 2, 53, 2),
    Sketcher.Constraint("Vertical", 66, 2, 70, 2),
    Sketcher.Constraint("Vertical", 67, 2, 71, 2),
    Sketcher.Constraint("Vertical", 71, 2, 75, 2),
    Sketcher.Constraint("Vertical", 59, 2, 79, 2),
    Sketcher.Constraint("Equal", 6, 8),
    Sketcher.Constraint("Equal", 14, 16),
    Sketcher.Constraint("Equal", 2, 37),
    Sketcher.Constraint("Equal", 18, 40),
    Sketcher.Constraint("Equal", 46, 48),
    Sketcher.Constraint("Equal", 50, 52),
    Sketcher.Constraint("Equal", 39, 61),
    Sketcher.Constraint("Equal", 63, 65),
    Sketcher.Constraint("Equal", 75, 76),
    Sketcher.Constraint("Distance", 0, 2.0),
    Sketcher.Constraint("Distance", 24, 4.928402),
    Sketcher.Constraint("Distance", 32, 5.482302),
    Sketcher.Constraint("DistanceX", -1, 1, 66, 2, 8.8915),
    Sketcher.Constraint("DistanceX", -1, 1, 73, 2, 6.5824),
    Sketcher.Constraint("Distance", 1, 2.47352),
    Sketcher.Constraint("Distance", 4, 2.002252),
    Sketcher.Constraint("Distance", 5, 2.450328),
    Sketcher.Constraint("Distance", 17, 2.583639),
    Sketcher.Constraint("Distance", 25, 2.001611),
    Sketcher.Constraint("Distance", 28, 5.243411),
    Sketcher.Constraint("Distance", 29, 2.001871),
    Sketcher.Constraint("Distance", 33, 2.00313),
    Sketcher.Constraint("Distance", 45, 3.175339),
    Sketcher.Constraint("Distance", 49, 2.879931),
    Sketcher.Constraint("DistanceY", -1, 1, 0, 2, 41.427732),
    Sketcher.Constraint("DistanceY", -1, 1, 2, 2, 38.258162),
    Sketcher.Constraint("DistanceX", -1, 1, 6, 2, 13.183189),
    Sketcher.Constraint("DistanceX", -1, 1, 7, 2, 14.65209),
    Sketcher.Constraint("DistanceX", -1, 1, 8, 2, 16.598689),
    Sketcher.Constraint("DistanceY", -1, 1, 8, 2, 41.312908),
    Sketcher.Constraint("DistanceX", -1, 1, 13, 2, 22.323709),
    Sketcher.Constraint("DistanceX", -1, 1, 14, 2, 23.929169),
    Sketcher.Constraint("DistanceY", -1, 1, 14, 2, 38.07415),
    Sketcher.Constraint("DistanceY", -1, 1, 17, 2, 39.344581),
    Sketcher.Constraint("DistanceY", -1, 1, 20, 2, 35.991789),
    Sketcher.Constraint("DistanceX", -1, 1, 21, 2, 27.90305),
    Sketcher.Constraint("DistanceX", -1, 1, 23, 2, 27.05935),
    Sketcher.Constraint("DistanceY", -1, 1, 23, 2, 31.99681),
    Sketcher.Constraint("DistanceY", -1, 1, 27, 2, 26.647768),
    Sketcher.Constraint("DistanceX", -1, 1, 28, 2, 29.809729),
    Sketcher.Constraint("DistanceY", -1, 1, 28, 2, 25.762892),
    Sketcher.Constraint("DistanceX", -1, 1, 32, 2, 29.875639),
    Sketcher.Constraint("DistanceY", -1, 1, 37, 2, 16.201641),
    Sketcher.Constraint("DistanceY", -1, 1, 38, 2, 12.226329),
    Sketcher.Constraint("DistanceX", -1, 1, 39, 2, 27.400761),
    Sketcher.Constraint("DistanceX", -1, 1, 40, 2, 24.34904),
    Sketcher.Constraint("DistanceX", -1, 1, 41, 2, 26.136911),
    Sketcher.Constraint("DistanceY", -1, 1, 42, 2, 10.435011),
    Sketcher.Constraint("DistanceY", -1, 1, 43, 2, 8.035178),
    Sketcher.Constraint("DistanceX", -1, 1, 48, 2, 17.217009),
    Sketcher.Constraint("DistanceY", -1, 1, 50, 2, 10.50549),
    Sketcher.Constraint("DistanceY", -1, 1, 56, 2, 7.23147),
    Sketcher.Constraint("DistanceY", -1, 1, 60, 2, 12.804579),
    Sketcher.Constraint("DistanceX", -1, 1, 62, 2, 9.063751),
    Sketcher.Constraint("DistanceY", -1, 1, 62, 2, 16.129962),
    Sketcher.Constraint("DistanceX", -1, 1, 65, 2, 6.00862),
    Sketcher.Constraint("DistanceY", -1, 1, 65, 2, 16.969048),
    Sketcher.Constraint("DistanceX", -1, 1, 69, 2, 6.708082),
    Sketcher.Constraint("DistanceY", -1, 1, 70, 2, 26.573769),
    Sketcher.Constraint("DistanceY", -1, 1, 72, 2, 29.202971),
    Sketcher.Constraint("DistanceX", -1, 1, 74, 2, 8.941629),
    Sketcher.Constraint("DistanceX", -1, 1, 76, 2, 6.830979),
    Sketcher.Constraint("DistanceX", -1, 1, 78, 2, 6.35954),
    Sketcher.Constraint("DistanceY", -1, 1, 78, 2, 33.20299),
    Sketcher.Constraint("Distance", 13, 2.470058),
    Sketcher.Constraint("Distance", 20, 4.730577),
    Sketcher.Constraint("Distance", 53, 2.340914),
    Sketcher.Constraint("DistanceX", -1, 1, 0, 2, 9.291077),
    Sketcher.Constraint("DistanceX", -1, 1, 16, 2, 20.294085),
    Sketcher.Constraint("DistanceX", -1, 1, 24, 2, 29.657517),
    Sketcher.Constraint("DistanceY", -1, 1, 32, 2, 20.653317),
    Sketcher.Constraint("DistanceX", -1, 1, 44, 2, 20.616325),
    Sketcher.Constraint("DistanceY", -1, 1, 52, 2, 7.191393),
])
pad5 = body.newObject("PartDesign::Pad", "Pad004")
pad5.Profile = sketch15
pad5.Length = 4.4
pad5.Reversed = True

# Sketch on XZ plane
sketch16 = body.newObject("Sketcher::SketchObject", "Sketch015")
sketch16.AttachmentSupport = (doc.getObject("XZ_Plane"), [""])
sketch16.MapMode = "FlatFace"
sketch16.AttachmentOffset = App.Placement(V(0, 0, -65.024023), App.Rotation())
sketch16.addGeometry([
    Part.Circle(V(-7.334253, 0, 0), V(0, 0, 1), 3),
    Part.Circle(V(52.665747, 0, 0), V(0, 0, 1), 3),
], False)
sketch16.addConstraint([
    Sketcher.Constraint("Equal", 0, 1),
    Sketcher.Constraint("PointOnObject", 0, 3, -1),
    Sketcher.Constraint("PointOnObject", 1, 3, -1),
    Sketcher.Constraint("Diameter", 0, 6.0),
    Sketcher.Constraint("DistanceX", 0, 3, 1, 3, 60.0),
    Sketcher.Constraint("DistanceX", 0, 3, -1, 1, 7.334253),
])
pad6 = body.newObject("PartDesign::Pad", "Pad005")
pad6.Profile = sketch16
pad6.Length = 108

# Sketch on YZ plane
sketch17 = body.newObject("Sketcher::SketchObject", "Sketch016")
sketch17.AttachmentSupport = (doc.getObject("YZ_Plane"), [""])
sketch17.MapMode = "FlatFace"
sketch17.AttachmentOffset = App.Placement(V(0, 0, 112.665747), App.Rotation())
sketch17.addGeometry([
    Part.Circle(V(-12.975977, 0, 0), V(0, 0, 1), 3),
    Part.Circle(V(45.024023, 0, 0), V(0, 0, 1), 3),
], False)
sketch17.addConstraint([
    Sketcher.Constraint("Equal", 0, 1),
    Sketcher.Constraint("PointOnObject", 0, 3, -1),
    Sketcher.Constraint("PointOnObject", 1, 3, -1),
    Sketcher.Constraint("Diameter", 0, 6.0),
    Sketcher.Constraint("DistanceX", 0, 3, 1, 3, 58.0),
    Sketcher.Constraint("DistanceX", 0, 3, -1, 1, 12.975977),
])
pad7 = body.newObject("PartDesign::Pad", "Pad006")
pad7.Profile = sketch17
pad7.Length = 180
pad7.Reversed = True

doc.recompute()
